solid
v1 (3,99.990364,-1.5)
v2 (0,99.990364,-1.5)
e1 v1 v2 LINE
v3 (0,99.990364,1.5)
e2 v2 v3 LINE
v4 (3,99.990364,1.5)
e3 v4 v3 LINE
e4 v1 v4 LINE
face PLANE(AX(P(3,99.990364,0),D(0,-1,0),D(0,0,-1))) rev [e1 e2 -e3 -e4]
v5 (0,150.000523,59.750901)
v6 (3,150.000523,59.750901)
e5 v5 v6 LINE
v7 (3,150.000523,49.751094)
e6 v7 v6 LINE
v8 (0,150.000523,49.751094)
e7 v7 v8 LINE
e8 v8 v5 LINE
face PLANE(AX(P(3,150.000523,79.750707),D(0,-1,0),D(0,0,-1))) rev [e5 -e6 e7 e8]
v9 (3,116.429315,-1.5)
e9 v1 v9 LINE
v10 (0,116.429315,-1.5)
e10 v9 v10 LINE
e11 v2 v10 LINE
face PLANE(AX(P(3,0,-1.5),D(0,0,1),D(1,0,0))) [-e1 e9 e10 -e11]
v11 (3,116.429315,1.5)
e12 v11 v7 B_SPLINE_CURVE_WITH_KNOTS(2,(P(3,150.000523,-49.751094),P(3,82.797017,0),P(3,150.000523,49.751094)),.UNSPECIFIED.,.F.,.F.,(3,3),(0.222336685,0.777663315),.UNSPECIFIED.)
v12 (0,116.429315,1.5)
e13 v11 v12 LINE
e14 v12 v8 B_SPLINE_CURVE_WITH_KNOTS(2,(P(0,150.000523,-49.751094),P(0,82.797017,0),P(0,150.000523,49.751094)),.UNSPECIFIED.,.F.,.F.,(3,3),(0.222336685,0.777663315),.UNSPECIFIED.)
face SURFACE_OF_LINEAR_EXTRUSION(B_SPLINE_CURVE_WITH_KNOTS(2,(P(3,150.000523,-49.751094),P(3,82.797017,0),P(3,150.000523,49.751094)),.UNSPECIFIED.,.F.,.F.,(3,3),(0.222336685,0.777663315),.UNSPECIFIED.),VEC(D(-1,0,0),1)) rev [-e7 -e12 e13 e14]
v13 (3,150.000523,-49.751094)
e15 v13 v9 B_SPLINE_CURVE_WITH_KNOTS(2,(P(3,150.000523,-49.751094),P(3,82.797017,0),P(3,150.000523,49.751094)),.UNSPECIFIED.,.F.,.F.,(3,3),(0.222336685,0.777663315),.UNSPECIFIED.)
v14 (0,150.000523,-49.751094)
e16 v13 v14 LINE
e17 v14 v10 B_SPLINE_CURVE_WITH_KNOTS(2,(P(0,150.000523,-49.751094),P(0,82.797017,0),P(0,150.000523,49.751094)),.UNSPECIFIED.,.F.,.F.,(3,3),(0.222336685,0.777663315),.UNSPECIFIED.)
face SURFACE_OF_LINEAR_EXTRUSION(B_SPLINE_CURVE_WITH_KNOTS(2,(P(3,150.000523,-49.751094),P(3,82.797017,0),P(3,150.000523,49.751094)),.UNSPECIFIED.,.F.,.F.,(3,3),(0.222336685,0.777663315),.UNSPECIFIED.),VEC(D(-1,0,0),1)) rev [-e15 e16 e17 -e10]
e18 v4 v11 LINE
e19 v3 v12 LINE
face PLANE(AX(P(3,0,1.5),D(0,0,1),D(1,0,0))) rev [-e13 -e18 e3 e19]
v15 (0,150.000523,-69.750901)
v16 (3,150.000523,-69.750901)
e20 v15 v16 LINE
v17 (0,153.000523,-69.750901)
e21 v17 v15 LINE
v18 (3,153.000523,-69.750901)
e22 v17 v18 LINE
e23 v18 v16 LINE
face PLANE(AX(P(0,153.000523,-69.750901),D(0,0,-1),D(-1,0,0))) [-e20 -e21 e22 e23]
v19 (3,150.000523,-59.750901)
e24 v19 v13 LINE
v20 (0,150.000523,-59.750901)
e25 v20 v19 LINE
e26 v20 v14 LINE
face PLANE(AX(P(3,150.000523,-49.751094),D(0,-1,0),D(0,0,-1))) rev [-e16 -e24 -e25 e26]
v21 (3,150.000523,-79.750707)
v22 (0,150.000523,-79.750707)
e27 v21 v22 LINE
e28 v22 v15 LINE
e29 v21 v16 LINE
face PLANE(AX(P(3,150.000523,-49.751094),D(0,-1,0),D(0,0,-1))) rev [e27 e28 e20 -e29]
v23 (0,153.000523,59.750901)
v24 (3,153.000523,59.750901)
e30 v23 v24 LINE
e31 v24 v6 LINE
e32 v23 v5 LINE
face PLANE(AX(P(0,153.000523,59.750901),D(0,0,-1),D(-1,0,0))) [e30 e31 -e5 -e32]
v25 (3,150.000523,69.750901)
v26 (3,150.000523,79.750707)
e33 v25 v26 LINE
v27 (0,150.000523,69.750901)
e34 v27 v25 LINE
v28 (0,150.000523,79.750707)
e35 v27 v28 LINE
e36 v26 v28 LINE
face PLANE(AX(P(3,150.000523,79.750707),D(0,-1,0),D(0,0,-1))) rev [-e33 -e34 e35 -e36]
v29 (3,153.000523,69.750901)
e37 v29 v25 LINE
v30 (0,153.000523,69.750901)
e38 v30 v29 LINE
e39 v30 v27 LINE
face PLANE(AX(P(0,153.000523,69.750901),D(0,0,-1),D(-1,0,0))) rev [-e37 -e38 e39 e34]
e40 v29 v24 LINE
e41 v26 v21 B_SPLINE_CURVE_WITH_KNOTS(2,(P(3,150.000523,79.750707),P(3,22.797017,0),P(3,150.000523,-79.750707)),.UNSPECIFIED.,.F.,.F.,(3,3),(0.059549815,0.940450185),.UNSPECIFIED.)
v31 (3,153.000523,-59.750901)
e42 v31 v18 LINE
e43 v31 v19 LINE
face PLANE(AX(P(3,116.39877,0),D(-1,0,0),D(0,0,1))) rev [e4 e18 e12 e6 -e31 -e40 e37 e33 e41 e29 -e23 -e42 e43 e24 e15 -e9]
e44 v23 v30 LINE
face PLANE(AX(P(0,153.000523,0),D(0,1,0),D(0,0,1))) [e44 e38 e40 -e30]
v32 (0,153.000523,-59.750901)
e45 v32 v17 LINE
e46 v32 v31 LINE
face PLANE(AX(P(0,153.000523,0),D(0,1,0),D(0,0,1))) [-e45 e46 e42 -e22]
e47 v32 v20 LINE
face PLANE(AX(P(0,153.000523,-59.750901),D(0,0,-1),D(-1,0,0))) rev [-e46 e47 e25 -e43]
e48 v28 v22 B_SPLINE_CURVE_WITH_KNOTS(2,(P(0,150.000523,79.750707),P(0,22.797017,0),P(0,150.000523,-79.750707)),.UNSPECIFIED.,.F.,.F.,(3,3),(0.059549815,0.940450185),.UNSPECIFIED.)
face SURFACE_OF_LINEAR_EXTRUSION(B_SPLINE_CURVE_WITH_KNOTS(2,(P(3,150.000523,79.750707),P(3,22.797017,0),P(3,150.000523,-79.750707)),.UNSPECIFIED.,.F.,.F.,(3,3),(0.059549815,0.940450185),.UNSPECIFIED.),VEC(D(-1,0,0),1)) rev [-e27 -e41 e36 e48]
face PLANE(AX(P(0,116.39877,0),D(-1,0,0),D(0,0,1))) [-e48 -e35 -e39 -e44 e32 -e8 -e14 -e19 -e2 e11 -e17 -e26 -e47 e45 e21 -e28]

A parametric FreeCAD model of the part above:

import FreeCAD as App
import Part
import Sketcher
from FreeCAD import Vector
Q = App.Units.Quantity


def add_polygon(sketch, points):
    """Adds a closed chain of lines whose ends are joined by coincident constraints."""
    first, n = sketch.GeometryCount, len(points)
    for a, b in zip(points, points[1:] + points[:1]):
        sketch.addGeometry(Part.LineSegment(App.Vector(*a, 0), App.Vector(*b, 0)), False)
    for i in range(n):
        sketch.addConstraint(Sketcher.Constraint("Coincident", first + i, 2, first + (i + 1) % n, 1))

doc = App.newDocument("Part")
body = doc.addObject("PartDesign::Body", "Body")

# Sketch on YZ plane
sketch1 = body.newObject("Sketcher::SketchObject", "Sketch")
sketch1.AttachmentSupport = (doc.getObject("YZ_Plane"), [""])
sketch1.MapMode = "FlatFace"
sketch1.addGeometry(Part.LineSegment(Vector(150.000523, 49.751094, 0), Vector(150.000523, 79.750707, 0)), False)
sketch1.addGeometry(Part.BSplineCurve([Vector(150.000523, 79.750707, 0), Vector(22.797017, 0, 0), Vector(150.000523, -79.750707, 0)], [3, 3], [0.059549815, 0.940450185], False, 2, [1, 1, 1], False), False)
sketch1.addGeometry(Part.LineSegment(Vector(150.000523, -79.750707, 0), Vector(150.000523, -49.751094, 0)), False)
sketch1.addGeometry(Part.BSplineCurve([Vector(150.000523, 49.751094, 0), Vector(82.797017, 0, 0), Vector(150.000523, -49.751094, 0)], [3, 3], [0.222336685, 0.777663315], False, 2, [1, 1, 1], False), False)
sketch1.addConstraint(Sketcher.Constraint("Block", 1))
sketch1.addConstraint(Sketcher.Constraint("Block", 3))
sketch1.addConstraint(Sketcher.Constraint("Coincident", 0, 2, 1, 1))
sketch1.addConstraint(Sketcher.Constraint("Coincident", 1, 2, 2, 1))
sketch1.addConstraint(Sketcher.Constraint("Coincident", 2, 2, 3, 2))
sketch1.addConstraint(Sketcher.Constraint("Coincident", 3, 1, 0, 1))
pad1 = body.newObject("PartDesign::Pad", "Pad")
pad1.Profile = sketch1
pad1.Length = 3

# Sketch on XZ plane
sketch2 = body.newObject("Sketcher::SketchObject", "Sketch001")
sketch2.AttachmentSupport = (doc.getObject("XZ_Plane"), [""])
sketch2.MapMode = "FlatFace"
sketch2.AttachmentOffset = App.Placement(Vector(0, 0, -150.000523), App.Rotation())
add_polygon(sketch2, [(3, 59.8), (0, 59.8), (0, 69.8), (3, 69.8)])  # lines 0-3
add_polygon(sketch2, [(0, -69.8), (0, -59.8), (3, -59.8), (3, -69.8)])  # lines 4-7
sketch2.addConstraint(Sketcher.Constraint("Horizontal", 0))
sketch2.addConstraint(Sketcher.Constraint("Vertical", 1))
sketch2.addConstraint(Sketcher.Constraint("Horizontal", 2))
sketch2.addConstraint(Sketcher.Constraint("Vertical", 3))
sketch2.addConstraint(Sketcher.Constraint("Vertical", 4))
sketch2.addConstraint(Sketcher.Constraint("Horizontal", 5))
sketch2.addConstraint(Sketcher.Constraint("Vertical", 6))
sketch2.addConstraint(Sketcher.Constraint("Horizontal", 7))
sketch2.addConstraint(Sketcher.Constraint("Symmetric", 0, 2, 4, 2, -1, 1))
sketch2.addConstraint(Sketcher.Constraint("Symmetric", 2, 2, 6, 2, -1))
sketch2.addConstraint(Sketcher.Constraint("PointOnObject", 0, 2, -2))
sketch2.addConstraint(Sketcher.Constraint("DistanceX", 0, 2, 0, 1, Q("3 mm")))
sketch2.addConstraint(Sketcher.Constraint("DistanceY", 1, 1, 1, 2, Q("10 mm")))
sketch2.addConstraint(Sketcher.Constraint("DistanceY", -1, 1, 0, 2, Q("59.750901 mm")))
pad2 = body.newObject("PartDesign::Pad", "Pad001")
pad2.Profile = sketch2
pad2.Length = 3
pad2.Reversed = True

# Sketch on YZ plane
sketch3 = body.newObject("Sketcher::SketchObject", "Sketch002")
sketch3.AttachmentSupport = (doc.getObject("YZ_Plane"), [""])
sketch3.MapMode = "FlatFace"
sketch3.addGeometry(Part.LineSegment(Vector(116.429315, -1.5, 0), Vector(99.990364, -1.5, 0)), False)
sketch3.addGeometry(Part.LineSegment(Vector(99.990364, -1.5, 0), Vector(99.990364, 1.5, 0)), False)
sketch3.addGeometry(Part.LineSegment(Vector(99.990364, 1.5, 0), Vector(116.429315, 1.5, 0)), False)
sketch3.addGeometry(Part.BSplineCurve([Vector(116.429315, 1.5, 0), Vector(116.368225, 0, 0), Vector(116.429315, -1.5, 0)], [3, 3], [0.491628426, 0.508371574], False, 2, [1, 1, 1], False), False)
sketch3.addConstraint(Sketcher.Constraint("Block", 3))
sketch3.addConstraint(Sketcher.Constraint("Coincident", 0, 2, 1, 1))
sketch3.addConstraint(Sketcher.Constraint("Coincident", 1, 2, 2, 1))
sketch3.addConstraint(Sketcher.Constraint("Coincident", 2, 2, 3, 1))
sketch3.addConstraint(Sketcher.Constraint("Coincident", 3, 2, 0, 1))
sketch3.addConstraint(Sketcher.Constraint("Horizontal", 0))
sketch3.addConstraint(Sketcher.Constraint("Vertical", 1))
sketch3.addConstraint(Sketcher.Constraint("Horizontal", 2))
sketch3.addConstraint(Sketcher.Constraint("DistanceX", 0, 2, 0, 1, Q("16.438951 mm")))
pocket1 = body.newObject("PartDesign::Pocket", "Pocket")
pocket1.Profile = sketch3
pocket1.Type = "ThroughAll"
pocket1.Reversed = True

doc.recompute()
